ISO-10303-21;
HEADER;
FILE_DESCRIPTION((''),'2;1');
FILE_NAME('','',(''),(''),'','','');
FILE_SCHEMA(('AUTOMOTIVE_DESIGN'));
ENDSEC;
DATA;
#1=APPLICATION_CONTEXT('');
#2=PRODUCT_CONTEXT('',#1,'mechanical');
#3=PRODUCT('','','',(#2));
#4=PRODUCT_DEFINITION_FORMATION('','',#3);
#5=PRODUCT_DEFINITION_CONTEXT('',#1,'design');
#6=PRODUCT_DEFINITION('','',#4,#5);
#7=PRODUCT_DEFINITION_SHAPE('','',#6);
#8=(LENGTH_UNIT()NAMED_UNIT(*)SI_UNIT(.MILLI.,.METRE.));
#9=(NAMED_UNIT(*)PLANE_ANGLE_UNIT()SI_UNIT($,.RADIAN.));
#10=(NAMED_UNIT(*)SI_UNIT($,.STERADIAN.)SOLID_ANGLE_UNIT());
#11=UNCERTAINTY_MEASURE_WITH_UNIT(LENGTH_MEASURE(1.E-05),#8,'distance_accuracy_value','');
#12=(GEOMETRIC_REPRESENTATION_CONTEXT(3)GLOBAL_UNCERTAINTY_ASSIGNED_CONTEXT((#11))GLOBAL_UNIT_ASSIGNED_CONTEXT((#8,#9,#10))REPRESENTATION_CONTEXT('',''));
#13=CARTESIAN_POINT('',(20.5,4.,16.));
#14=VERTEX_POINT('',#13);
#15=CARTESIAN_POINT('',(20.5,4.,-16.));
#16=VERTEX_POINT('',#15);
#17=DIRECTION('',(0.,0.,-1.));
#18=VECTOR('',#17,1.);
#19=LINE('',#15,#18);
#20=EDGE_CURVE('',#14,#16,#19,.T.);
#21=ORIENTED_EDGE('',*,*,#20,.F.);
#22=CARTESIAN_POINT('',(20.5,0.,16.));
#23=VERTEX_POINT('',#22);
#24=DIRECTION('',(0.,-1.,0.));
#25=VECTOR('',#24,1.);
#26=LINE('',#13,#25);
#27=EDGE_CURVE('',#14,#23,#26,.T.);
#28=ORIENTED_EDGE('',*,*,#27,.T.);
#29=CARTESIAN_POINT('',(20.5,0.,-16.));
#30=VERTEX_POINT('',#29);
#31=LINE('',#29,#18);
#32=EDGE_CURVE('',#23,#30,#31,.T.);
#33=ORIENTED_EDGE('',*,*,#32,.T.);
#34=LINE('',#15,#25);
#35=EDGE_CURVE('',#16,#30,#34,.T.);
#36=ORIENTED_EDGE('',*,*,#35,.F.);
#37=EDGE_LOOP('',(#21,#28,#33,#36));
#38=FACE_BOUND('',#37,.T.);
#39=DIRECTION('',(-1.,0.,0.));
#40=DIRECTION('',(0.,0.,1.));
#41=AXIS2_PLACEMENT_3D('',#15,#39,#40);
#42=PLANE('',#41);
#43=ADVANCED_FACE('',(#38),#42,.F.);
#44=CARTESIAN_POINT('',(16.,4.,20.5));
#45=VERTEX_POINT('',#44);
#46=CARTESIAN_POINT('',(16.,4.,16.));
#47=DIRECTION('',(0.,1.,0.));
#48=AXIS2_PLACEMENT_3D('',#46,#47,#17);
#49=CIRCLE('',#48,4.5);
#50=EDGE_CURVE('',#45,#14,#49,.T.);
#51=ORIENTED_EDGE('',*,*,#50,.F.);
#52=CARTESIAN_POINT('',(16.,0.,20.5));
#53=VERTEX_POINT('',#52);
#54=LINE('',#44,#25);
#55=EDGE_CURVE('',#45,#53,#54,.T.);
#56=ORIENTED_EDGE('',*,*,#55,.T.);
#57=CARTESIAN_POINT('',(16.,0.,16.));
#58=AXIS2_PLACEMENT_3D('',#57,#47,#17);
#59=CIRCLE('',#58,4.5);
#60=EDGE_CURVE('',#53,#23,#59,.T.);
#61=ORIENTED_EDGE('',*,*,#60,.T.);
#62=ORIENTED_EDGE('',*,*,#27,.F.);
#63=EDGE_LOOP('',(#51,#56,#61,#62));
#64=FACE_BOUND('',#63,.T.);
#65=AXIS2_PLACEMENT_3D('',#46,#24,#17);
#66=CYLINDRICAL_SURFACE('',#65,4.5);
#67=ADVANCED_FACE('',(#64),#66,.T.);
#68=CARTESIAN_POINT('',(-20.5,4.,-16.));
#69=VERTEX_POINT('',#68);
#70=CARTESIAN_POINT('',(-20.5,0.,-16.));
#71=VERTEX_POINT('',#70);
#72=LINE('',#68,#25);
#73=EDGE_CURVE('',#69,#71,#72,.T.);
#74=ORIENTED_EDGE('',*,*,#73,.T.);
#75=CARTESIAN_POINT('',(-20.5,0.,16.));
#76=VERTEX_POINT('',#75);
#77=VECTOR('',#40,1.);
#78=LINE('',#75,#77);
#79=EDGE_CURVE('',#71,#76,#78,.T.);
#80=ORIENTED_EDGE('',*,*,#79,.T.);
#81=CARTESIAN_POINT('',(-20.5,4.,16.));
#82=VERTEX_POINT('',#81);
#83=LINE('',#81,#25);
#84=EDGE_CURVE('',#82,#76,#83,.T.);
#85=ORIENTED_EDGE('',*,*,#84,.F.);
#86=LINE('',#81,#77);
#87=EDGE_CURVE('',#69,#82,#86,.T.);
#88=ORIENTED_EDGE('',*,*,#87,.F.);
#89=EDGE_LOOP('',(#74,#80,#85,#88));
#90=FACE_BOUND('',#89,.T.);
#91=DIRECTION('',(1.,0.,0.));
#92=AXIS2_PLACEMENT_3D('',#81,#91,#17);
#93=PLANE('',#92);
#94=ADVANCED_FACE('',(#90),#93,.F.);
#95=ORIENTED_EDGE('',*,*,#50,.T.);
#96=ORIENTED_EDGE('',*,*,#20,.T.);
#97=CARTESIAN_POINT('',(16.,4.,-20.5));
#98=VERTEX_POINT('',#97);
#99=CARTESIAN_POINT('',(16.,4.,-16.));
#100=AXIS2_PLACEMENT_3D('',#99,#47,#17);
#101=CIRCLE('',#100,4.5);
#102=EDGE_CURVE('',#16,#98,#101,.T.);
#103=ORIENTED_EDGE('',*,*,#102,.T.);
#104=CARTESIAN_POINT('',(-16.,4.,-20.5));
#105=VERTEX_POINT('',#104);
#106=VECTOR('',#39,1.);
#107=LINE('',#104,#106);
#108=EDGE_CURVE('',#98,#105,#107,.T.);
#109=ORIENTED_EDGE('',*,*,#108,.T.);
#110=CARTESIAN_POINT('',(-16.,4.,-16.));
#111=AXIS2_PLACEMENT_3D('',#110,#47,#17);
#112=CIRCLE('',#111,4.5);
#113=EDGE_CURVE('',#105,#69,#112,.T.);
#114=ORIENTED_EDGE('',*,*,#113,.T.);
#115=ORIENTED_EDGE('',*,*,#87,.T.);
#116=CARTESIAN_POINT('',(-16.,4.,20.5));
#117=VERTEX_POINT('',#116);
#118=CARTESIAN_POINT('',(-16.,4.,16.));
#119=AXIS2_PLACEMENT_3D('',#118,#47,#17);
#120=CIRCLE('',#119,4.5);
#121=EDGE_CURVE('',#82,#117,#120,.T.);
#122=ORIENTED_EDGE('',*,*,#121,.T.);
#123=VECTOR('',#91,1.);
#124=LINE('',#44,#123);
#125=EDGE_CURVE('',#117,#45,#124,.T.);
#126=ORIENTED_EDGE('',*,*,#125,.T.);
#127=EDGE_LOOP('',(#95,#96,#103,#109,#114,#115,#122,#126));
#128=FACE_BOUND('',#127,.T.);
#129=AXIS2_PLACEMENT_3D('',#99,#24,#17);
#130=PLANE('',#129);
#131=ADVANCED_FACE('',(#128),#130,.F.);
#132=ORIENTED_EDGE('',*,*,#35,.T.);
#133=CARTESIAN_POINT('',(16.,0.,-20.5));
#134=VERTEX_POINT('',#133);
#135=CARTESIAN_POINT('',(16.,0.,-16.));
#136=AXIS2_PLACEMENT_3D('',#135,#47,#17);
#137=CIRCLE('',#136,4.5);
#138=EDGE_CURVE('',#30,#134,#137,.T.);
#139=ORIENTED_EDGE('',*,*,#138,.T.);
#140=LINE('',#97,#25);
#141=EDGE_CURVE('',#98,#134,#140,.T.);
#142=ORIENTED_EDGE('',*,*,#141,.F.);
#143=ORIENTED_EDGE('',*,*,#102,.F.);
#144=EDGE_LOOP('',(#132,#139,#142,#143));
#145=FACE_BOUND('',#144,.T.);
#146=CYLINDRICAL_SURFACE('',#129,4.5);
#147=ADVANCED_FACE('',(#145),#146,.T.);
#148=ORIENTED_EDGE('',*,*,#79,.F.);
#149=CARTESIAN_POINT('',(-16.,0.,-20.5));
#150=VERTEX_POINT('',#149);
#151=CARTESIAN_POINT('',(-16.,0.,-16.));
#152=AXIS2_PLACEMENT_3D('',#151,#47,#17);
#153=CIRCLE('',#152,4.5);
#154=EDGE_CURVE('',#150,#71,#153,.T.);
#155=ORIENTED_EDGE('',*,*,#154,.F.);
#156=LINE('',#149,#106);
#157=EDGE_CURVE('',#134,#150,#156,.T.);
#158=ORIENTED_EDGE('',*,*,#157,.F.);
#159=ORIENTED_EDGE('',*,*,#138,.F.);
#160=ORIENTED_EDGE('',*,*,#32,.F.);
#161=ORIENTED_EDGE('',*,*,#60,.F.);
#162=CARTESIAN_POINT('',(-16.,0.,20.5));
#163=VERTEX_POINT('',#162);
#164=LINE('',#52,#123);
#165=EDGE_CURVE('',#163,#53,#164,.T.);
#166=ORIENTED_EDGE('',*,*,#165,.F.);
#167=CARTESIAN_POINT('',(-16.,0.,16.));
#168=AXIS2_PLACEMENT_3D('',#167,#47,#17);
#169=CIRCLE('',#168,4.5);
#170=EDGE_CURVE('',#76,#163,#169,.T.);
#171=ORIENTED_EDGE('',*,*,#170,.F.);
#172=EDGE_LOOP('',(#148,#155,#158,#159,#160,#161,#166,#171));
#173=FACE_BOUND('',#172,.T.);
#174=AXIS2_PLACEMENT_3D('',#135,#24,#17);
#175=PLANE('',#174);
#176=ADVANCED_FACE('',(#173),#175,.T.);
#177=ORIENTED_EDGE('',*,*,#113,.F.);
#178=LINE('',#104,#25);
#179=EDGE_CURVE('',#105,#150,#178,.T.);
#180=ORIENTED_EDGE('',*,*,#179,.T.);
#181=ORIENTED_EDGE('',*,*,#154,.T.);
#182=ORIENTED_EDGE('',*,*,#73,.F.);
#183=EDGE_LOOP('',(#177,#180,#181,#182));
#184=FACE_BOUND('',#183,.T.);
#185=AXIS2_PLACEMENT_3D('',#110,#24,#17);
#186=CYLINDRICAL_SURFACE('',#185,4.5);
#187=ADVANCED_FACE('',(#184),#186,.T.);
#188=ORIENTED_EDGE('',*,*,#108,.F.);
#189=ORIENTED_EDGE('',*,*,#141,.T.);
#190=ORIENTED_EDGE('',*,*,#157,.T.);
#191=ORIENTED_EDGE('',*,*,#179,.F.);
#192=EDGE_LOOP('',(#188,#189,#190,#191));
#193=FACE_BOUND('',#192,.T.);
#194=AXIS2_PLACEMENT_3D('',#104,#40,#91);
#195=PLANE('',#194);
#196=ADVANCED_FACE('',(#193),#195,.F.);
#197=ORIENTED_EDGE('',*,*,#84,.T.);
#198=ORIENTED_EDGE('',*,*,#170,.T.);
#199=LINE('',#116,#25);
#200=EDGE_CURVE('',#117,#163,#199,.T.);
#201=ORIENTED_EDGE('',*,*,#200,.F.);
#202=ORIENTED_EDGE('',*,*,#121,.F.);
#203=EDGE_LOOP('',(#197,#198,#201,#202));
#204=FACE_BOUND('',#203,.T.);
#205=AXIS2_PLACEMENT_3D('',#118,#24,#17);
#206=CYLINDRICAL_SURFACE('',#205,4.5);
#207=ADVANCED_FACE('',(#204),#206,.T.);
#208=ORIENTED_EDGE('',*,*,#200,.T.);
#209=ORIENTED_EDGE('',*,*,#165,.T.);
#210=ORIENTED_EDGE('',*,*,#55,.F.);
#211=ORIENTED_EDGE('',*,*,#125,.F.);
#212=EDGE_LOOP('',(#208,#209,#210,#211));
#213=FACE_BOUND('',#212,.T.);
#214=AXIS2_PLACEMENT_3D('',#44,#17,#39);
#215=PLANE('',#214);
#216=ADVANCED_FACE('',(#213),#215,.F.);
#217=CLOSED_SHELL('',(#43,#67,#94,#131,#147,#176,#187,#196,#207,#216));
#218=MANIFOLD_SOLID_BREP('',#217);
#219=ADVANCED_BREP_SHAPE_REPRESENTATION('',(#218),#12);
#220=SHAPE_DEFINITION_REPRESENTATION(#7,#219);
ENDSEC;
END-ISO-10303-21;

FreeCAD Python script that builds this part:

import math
import FreeCAD as App
import Part
import Sketcher
from FreeCAD import Vector

doc = App.newDocument("Part")
params = doc.addObject("Spreadsheet::Sheet", "Params")
for row, (alias, value) in enumerate([
    ("sketch1_radius", "4.5 mm"),
    ("sketch1_width", "32 mm"),
    ("pad1_length", "4 mm"),
], start=1):
    params.set(f"A{row}", alias)
    params.set(f"B{row}", "=" + value)
    params.setAlias(f"B{row}", alias)

body = doc.addObject("PartDesign::Body", "Body")

# Sketch on XZ plane
sketch1 = doc.addObject("Sketcher::SketchObject", "Sketch")
body.addObject(sketch1)
sketch1.AttachmentSupport = (doc.XZ_Plane, [""])
sketch1.MapMode = "FlatFace"
sketch1.addGeometry([
    Part.LineSegment(Vector(20.5, 16, 0), Vector(20.5, -16, 0)),  # 0
    Part.ArcOfCircle(Part.Circle(Vector(16, -16, 0), Vector(0, 0, 1), 4.5), math.radians(-90), math.radians(0)),  # 1
    Part.LineSegment(Vector(16, -20.5, 0), Vector(-16, -20.5, 0)),  # 2
    Part.ArcOfCircle(Part.Circle(Vector(-16, -16, 0), Vector(0, 0, 1), 4.5), math.radians(-180), math.radians(-90)),  # 3
    Part.LineSegment(Vector(-20.5, -16, 0), Vector(-20.5, 16, 0)),  # 4
    Part.ArcOfCircle(Part.Circle(Vector(-16, 16, 0), Vector(0, 0, 1), 4.5), math.radians(90), math.radians(180)),  # 5
    Part.LineSegment(Vector(-16, 20.5, 0), Vector(16, 20.5, 0)),  # 6
    Part.ArcOfCircle(Part.Circle(Vector(16, 16, 0), Vector(0, 0, 1), 4.5), math.radians(0), math.radians(90)),  # 7
], False)
sketch1.addConstraint([
    Sketcher.Constraint("Tangent", 0, 2, 1, 2),
    Sketcher.Constraint("Tangent", 1, 1, 2, 1),
    Sketcher.Constraint("Tangent", 2, 2, 3, 2),
    Sketcher.Constraint("Tangent", 3, 1, 4, 1),
    Sketcher.Constraint("Tangent", 4, 2, 5, 2),
    Sketcher.Constraint("Tangent", 5, 1, 6, 1),
    Sketcher.Constraint("Tangent", 6, 2, 7, 2),
    Sketcher.Constraint("Tangent", 7, 1, 0, 1),
    Sketcher.Constraint("Vertical", 0),
    Sketcher.Constraint("Horizontal", 2),
    Sketcher.Constraint("Vertical", 4),
    Sketcher.Constraint("Horizontal", 6),
    Sketcher.Constraint("Equal", 1, 3),
    Sketcher.Constraint("Equal", 3, 5),
    Sketcher.Constraint("Equal", 5, 7),
    Sketcher.Constraint("Symmetric", 1, 3, 5, 3, -1, 1),
    Sketcher.Constraint("Equal", 6, 0),
    Sketcher.Constraint("Radius", 1, 4.5),
    Sketcher.Constraint("DistanceX", 2, 2, 2, 1, 32.0),
])
sketch1.setExpression("Constraints[17]", "Params.sketch1_radius")
sketch1.setExpression("Constraints[18]", "Params.sketch1_width")
pad1 = doc.addObject("PartDesign::Pad", "Pad")
body.addObject(pad1)
pad1.Profile = sketch1
pad1.setExpression("Length", "Params.pad1_length")
pad1.Reversed = True

doc.recompute()
